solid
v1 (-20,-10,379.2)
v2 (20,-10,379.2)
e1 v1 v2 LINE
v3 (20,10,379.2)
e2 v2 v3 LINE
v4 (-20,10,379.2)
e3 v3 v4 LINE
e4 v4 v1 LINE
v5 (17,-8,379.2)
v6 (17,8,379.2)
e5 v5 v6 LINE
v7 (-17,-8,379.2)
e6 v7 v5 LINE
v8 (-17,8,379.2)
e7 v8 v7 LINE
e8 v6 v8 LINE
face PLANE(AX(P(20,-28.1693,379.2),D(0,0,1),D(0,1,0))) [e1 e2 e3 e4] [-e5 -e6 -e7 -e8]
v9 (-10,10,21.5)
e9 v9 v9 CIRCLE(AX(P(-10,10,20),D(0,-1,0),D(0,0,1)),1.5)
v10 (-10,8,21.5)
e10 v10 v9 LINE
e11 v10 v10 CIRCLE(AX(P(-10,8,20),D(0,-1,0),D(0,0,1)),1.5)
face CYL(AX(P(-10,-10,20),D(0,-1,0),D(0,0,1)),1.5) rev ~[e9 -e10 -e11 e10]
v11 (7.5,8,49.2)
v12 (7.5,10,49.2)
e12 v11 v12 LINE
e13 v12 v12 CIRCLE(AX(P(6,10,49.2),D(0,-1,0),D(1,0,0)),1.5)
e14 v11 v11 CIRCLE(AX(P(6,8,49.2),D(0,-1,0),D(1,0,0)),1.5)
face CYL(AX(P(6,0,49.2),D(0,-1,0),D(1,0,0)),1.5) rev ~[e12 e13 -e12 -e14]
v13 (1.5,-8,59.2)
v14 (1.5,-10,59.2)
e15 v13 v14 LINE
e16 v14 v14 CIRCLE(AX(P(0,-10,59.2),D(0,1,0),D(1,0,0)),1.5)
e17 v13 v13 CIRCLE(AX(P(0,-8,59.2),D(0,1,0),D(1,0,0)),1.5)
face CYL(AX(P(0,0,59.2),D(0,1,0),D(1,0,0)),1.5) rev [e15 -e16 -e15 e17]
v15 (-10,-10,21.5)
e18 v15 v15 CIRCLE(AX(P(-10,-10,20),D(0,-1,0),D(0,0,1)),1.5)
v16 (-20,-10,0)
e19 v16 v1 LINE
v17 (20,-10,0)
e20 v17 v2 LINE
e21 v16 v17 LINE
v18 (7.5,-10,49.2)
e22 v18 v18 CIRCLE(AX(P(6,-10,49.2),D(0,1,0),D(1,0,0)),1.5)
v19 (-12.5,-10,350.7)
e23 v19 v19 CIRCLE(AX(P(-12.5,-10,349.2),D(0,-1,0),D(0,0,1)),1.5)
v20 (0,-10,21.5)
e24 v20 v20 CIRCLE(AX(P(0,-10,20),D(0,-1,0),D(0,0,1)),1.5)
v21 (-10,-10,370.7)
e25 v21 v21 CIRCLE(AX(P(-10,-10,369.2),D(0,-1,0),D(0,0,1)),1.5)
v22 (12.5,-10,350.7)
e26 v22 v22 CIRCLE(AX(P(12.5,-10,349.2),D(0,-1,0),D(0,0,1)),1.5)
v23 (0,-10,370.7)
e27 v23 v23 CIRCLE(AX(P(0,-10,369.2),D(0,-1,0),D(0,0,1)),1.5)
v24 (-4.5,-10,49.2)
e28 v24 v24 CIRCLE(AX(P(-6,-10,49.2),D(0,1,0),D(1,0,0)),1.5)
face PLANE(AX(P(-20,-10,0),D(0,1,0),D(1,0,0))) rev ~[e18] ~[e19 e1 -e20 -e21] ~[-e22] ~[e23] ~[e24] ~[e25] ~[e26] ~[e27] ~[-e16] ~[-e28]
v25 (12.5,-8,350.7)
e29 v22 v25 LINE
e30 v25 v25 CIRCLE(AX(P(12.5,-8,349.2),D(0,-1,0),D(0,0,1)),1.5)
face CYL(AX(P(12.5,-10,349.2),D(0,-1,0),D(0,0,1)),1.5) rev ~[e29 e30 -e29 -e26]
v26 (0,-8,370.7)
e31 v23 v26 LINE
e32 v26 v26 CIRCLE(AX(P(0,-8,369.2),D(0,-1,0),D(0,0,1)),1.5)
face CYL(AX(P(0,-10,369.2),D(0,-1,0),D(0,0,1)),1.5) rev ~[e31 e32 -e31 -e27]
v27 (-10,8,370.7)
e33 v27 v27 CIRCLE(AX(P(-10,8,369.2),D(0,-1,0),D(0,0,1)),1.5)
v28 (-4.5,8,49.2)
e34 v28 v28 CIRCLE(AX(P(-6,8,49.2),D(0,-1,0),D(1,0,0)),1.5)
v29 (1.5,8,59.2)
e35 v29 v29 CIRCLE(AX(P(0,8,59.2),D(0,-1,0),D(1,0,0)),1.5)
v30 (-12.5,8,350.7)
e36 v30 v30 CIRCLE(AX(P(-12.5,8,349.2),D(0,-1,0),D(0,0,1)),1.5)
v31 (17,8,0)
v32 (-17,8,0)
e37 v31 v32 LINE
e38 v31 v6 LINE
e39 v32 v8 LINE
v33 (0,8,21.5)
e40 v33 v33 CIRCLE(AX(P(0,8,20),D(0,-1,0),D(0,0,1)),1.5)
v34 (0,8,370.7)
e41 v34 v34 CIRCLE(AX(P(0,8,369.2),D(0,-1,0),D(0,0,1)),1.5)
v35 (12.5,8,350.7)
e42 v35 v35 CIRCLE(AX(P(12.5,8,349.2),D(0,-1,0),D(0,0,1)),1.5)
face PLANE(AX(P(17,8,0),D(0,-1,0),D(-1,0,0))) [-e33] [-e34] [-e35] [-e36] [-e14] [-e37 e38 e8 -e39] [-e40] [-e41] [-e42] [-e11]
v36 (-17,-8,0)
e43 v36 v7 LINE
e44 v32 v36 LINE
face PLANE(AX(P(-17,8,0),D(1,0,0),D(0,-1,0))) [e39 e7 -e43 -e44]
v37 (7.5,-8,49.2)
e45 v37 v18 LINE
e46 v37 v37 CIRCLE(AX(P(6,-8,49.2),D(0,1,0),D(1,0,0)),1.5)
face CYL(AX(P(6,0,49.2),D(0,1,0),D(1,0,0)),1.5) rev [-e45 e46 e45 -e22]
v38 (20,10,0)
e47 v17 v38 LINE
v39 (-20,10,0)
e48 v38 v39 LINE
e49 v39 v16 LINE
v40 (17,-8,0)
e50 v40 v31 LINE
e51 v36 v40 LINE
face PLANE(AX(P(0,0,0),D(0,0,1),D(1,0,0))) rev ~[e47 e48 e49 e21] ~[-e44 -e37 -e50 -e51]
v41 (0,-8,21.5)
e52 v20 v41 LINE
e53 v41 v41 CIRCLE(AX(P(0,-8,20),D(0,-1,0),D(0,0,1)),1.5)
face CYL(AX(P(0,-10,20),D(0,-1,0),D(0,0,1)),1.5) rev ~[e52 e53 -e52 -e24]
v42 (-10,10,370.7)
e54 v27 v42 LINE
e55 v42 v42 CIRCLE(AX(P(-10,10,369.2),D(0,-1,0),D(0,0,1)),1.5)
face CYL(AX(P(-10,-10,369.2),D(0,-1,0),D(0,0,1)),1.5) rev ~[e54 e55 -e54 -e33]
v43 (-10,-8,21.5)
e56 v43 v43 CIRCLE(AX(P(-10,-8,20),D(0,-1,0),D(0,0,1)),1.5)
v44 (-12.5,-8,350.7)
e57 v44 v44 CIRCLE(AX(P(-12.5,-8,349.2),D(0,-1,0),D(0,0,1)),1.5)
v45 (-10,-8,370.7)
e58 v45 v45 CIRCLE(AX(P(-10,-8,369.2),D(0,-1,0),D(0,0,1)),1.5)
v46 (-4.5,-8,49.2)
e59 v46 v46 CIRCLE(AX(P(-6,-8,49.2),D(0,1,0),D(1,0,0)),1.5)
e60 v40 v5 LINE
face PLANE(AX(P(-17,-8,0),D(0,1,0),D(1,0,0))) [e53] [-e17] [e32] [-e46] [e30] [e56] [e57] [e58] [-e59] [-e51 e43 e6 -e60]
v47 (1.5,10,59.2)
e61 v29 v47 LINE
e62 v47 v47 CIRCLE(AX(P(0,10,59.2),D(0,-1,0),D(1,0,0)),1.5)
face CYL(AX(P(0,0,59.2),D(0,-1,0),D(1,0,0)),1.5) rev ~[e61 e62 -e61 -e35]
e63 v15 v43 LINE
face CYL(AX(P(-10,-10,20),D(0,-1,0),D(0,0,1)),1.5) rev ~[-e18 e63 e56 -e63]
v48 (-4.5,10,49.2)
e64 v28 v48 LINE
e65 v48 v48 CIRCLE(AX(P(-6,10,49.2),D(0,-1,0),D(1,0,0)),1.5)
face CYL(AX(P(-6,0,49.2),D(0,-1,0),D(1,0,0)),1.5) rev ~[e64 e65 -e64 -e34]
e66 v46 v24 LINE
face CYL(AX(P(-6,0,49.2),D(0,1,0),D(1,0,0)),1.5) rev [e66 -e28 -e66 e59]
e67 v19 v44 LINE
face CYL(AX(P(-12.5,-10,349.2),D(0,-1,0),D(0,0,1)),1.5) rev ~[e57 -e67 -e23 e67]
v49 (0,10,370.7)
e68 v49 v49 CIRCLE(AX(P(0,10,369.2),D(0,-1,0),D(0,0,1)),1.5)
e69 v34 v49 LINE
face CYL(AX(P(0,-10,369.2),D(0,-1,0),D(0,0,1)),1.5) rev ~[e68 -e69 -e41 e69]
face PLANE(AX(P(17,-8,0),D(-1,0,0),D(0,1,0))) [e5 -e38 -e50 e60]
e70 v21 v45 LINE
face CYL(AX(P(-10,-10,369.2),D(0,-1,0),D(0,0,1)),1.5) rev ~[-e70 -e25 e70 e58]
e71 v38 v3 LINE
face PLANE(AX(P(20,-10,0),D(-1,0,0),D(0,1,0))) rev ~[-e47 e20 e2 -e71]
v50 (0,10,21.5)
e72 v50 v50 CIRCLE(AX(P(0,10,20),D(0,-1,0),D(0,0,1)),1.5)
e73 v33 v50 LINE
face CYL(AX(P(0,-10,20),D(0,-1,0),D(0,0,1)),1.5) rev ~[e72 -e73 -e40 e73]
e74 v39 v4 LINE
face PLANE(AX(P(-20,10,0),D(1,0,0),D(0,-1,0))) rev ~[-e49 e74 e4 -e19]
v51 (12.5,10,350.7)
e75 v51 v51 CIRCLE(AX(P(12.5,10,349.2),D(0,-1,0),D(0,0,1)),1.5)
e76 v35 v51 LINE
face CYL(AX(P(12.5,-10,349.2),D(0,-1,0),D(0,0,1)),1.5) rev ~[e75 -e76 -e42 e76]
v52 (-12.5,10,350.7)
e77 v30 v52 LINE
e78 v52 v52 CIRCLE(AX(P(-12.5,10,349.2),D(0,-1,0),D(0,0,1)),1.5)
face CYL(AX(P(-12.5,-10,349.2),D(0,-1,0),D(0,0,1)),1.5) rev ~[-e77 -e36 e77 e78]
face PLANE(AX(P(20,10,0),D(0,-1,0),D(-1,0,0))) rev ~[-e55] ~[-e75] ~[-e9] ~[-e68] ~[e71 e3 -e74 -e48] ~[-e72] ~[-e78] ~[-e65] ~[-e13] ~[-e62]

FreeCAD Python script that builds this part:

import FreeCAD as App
import Part
import Sketcher

V = App.Vector


def add_polygon(sketch, points):
    """Adds a closed chain of lines whose ends are joined by coincident constraints."""
    first, n = sketch.GeometryCount, len(points)
    for a, b in zip(points, points[1:] + points[:1]):
        sketch.addGeometry(Part.LineSegment(App.Vector(*a, 0), App.Vector(*b, 0)), False)
    for i in range(n):
        sketch.addConstraint(Sketcher.Constraint("Coincident", first + i, 2, first + (i + 1) % n, 1))

doc = App.newDocument("Part")
body = doc.addObject("PartDesign::Body", "Body")

# Sketch on XY plane
sketch1 = body.newObject("Sketcher::SketchObject", "Sketch")
sketch1.AttachmentSupport = (doc.getObject("XY_Plane"), [""])
sketch1.MapMode = "FlatFace"
add_polygon(sketch1, [(-20, 10), (-20, -10), (20, -10), (20, 10)])  # lines 0-3
add_polygon(sketch1, [(17, -8), (-17, -8), (-17, 8), (17, 8)])  # lines 4-7
sketch1.addConstraint(Sketcher.Constraint("Vertical", 0))
sketch1.addConstraint(Sketcher.Constraint("Horizontal", 1))
sketch1.addConstraint(Sketcher.Constraint("Vertical", 2))
sketch1.addConstraint(Sketcher.Constraint("Horizontal", 3))
sketch1.addConstraint(Sketcher.Constraint("Horizontal", 4))
sketch1.addConstraint(Sketcher.Constraint("Vertical", 5))
sketch1.addConstraint(Sketcher.Constraint("Horizontal", 6))
sketch1.addConstraint(Sketcher.Constraint("Vertical", 7))
sketch1.addConstraint(Sketcher.Constraint("Symmetric", 0, 2, 2, 2, -1, 1))
sketch1.addConstraint(Sketcher.Constraint("Symmetric", 4, 2, 6, 2, -1, 1))
sketch1.addConstraint(Sketcher.Constraint("DistanceY", 0, 2, 0, 1, 20.0))
sketch1.addConstraint(Sketcher.Constraint("DistanceX", 0, 2, -1, 1, 20.0))
sketch1.addConstraint(Sketcher.Constraint("DistanceX", 4, 2, -1, 1, 17.0))
sketch1.addConstraint(Sketcher.Constraint("DistanceY", 5, 1, 5, 2, 16.0))
pad1 = body.newObject("PartDesign::Pad", "Pad")
pad1.Profile = sketch1
pad1.Length = 500

# Sketch on XZ plane
sketch2 = body.newObject("Sketcher::SketchObject", "Sketch001")
sketch2.AttachmentSupport = (doc.getObject("XZ_Plane"), [""])
sketch2.MapMode = "FlatFace"
sketch2.addGeometry(Part.Circle(V(-6, 49.2, 0), V(0, 0, 1), 1.5), False)
sketch2.addGeometry(Part.Circle(V(6, 49.2, 0), V(0, 0, 1), 1.5), False)
sketch2.addGeometry(Part.Circle(V(0, 59.2, 0), V(0, 0, 1), 1.5), False)
sketch2.addConstraint(Sketcher.Constraint("Equal", 0, 1))
sketch2.addConstraint(Sketcher.Constraint("Equal", 1, 2))
sketch2.addConstraint(Sketcher.Constraint("Symmetric", 0, 3, 1, 3, -2))
sketch2.addConstraint(Sketcher.Constraint("PointOnObject", 2, 3, -2))
sketch2.addConstraint(Sketcher.Constraint("Diameter", 0, 3.0))
sketch2.addConstraint(Sketcher.Constraint("DistanceX", 0, 3, -1, 1, 6.0))
sketch2.addConstraint(Sketcher.Constraint("DistanceY", 0, 3, 2, 3, 10.0))
sketch2.addConstraint(Sketcher.Constraint("DistanceY", -1, 1, 0, 3, 49.2))
pocket1 = body.newObject("PartDesign::Pocket", "Pocket")
pocket1.Profile = sketch2
pocket1.Length = 184.7179
pocket1.Midplane = True

# Sketch on XZ plane
sketch3 = body.newObject("Sketcher::SketchObject", "Sketch002")
sketch3.AttachmentSupport = (doc.getObject("XZ_Plane"), [""])
sketch3.MapMode = "FlatFace"
sketch3.AttachmentOffset = App.Placement(V(0, 0, 10), App.Rotation())
sketch3.addGeometry(Part.Circle(V(-10, 20, 0), V(0, 0, 1), 1.5), False)
sketch3.addGeometry(Part.Circle(V(0, 20, 0), V(0, 0, 1), 1.5), False)
sketch3.addConstraint(Sketcher.Constraint("Equal", 0, 1))
sketch3.addConstraint(Sketcher.Constraint("PointOnObject", 1, 3, -2))
sketch3.addConstraint(Sketcher.Constraint("Horizontal", 0, 3, 1, 3))
sketch3.addConstraint(Sketcher.Constraint("Diameter", 0, 3.0))
sketch3.addConstraint(Sketcher.Constraint("DistanceX", 0, 3, -1, 1, 10.0))
sketch3.addConstraint(Sketcher.Constraint("DistanceY", -1, 1, 0, 3, 20.0))
pocket2 = body.newObject("PartDesign::Pocket", "Pocket001")
pocket2.Profile = sketch3
pocket2.Length = 109.5957

# Sketch on XZ plane
sketch4 = body.newObject("Sketcher::SketchObject", "Sketch003")
sketch4.AttachmentSupport = (doc.getObject("XZ_Plane"), [""])
sketch4.MapMode = "FlatFace"
sketch4.AttachmentOffset = App.Placement(V(0, 0, 10), App.Rotation())
sketch4.addGeometry(Part.Circle(V(-12.5, 349.2, 0), V(0, 0, 1), 1.5), False)
sketch4.addGeometry(Part.Circle(V(12.5, 349.2, 0), V(0, 0, 1), 1.5), False)
sketch4.addConstraint(Sketcher.Constraint("Equal", 0, 1))
sketch4.addConstraint(Sketcher.Constraint("Symmetric", 0, 3, 1, 3, -2))
sketch4.addConstraint(Sketcher.Constraint("Diameter", 0, 3.0))
sketch4.addConstraint(Sketcher.Constraint("DistanceX", 0, 3, 1, 3, 25.0))
sketch4.addConstraint(Sketcher.Constraint("DistanceY", -1, 1, 0, 3, 349.2))
pocket3 = body.newObject("PartDesign::Pocket", "Pocket002")
pocket3.Profile = sketch4
pocket3.Length = 772.9551
pocket3.Midplane = True

# Sketch on YZ plane
sketch5 = body.newObject("Sketcher::SketchObject", "Sketch004")
sketch5.AttachmentSupport = (doc.getObject("YZ_Plane"), [""])
sketch5.MapMode = "FlatFace"
sketch5.AttachmentOffset = App.Placement(V(0, 0, 20), App.Rotation())
add_polygon(sketch5, [(-33, 518), (-28, 379), (49, 379), (23, 518)])  # lines 0-3
sketch5.addConstraint(Sketcher.Constraint("Horizontal", 1))
sketch5.addConstraint(Sketcher.Constraint("Horizontal", 3))
sketch5.addConstraint(Sketcher.Constraint("DistanceY", -1, 1, 0, 2, 379.2))
sketch5.addConstraint(Sketcher.Constraint("DistanceX", 1, 1, 1, 2, 76.7178))
sketch5.addConstraint(Sketcher.Constraint("DistanceX", 3, 2, 3, 1, 56.6973))
sketch5.addConstraint(Sketcher.Constraint("DistanceY", -1, 1, 2, 2, 517.523))
sketch5.addConstraint(Sketcher.Constraint("DistanceX", 2, 2, 1, 2, 25.154))
sketch5.addConstraint(Sketcher.Constraint("DistanceX", 0, 2, -1, 1, 28.1693))
pocket4 = body.newObject("PartDesign::Pocket", "Pocket003")
pocket4.Profile = sketch5
pocket4.Length = 530
pocket4.Midplane = True

# Sketch on XZ plane
sketch6 = body.newObject("Sketcher::SketchObject", "Sketch005")
sketch6.AttachmentSupport = (doc.getObject("XZ_Plane"), [""])
sketch6.MapMode = "FlatFace"
sketch6.AttachmentOffset = App.Placement(V(0, 0, 10), App.Rotation())
sketch6.addGeometry(Part.Circle(V(-10, 369.2, 0), V(0, 0, 1), 1.5), False)
sketch6.addGeometry(Part.Circle(V(0, 369.2, 0), V(0, 0, 1), 1.5), False)
sketch6.addConstraint(Sketcher.Constraint("Equal", 0, 1))
sketch6.addConstraint(Sketcher.Constraint("PointOnObject", 1, 3, -2))
sketch6.addConstraint(Sketcher.Constraint("Horizontal", 0, 3, 1, 3))
sketch6.addConstraint(Sketcher.Constraint("Diameter", 0, 3.0))
sketch6.addConstraint(Sketcher.Constraint("DistanceX", 0, 3, -1, 1, 10.0))
sketch6.addConstraint(Sketcher.Constraint("DistanceY", -1, 1, 0, 3, 369.2))
pocket5 = body.newObject("PartDesign::Pocket", "Pocket004")
pocket5.Profile = sketch6
pocket5.Length = 1696
pocket5.Midplane = True

doc.recompute()
